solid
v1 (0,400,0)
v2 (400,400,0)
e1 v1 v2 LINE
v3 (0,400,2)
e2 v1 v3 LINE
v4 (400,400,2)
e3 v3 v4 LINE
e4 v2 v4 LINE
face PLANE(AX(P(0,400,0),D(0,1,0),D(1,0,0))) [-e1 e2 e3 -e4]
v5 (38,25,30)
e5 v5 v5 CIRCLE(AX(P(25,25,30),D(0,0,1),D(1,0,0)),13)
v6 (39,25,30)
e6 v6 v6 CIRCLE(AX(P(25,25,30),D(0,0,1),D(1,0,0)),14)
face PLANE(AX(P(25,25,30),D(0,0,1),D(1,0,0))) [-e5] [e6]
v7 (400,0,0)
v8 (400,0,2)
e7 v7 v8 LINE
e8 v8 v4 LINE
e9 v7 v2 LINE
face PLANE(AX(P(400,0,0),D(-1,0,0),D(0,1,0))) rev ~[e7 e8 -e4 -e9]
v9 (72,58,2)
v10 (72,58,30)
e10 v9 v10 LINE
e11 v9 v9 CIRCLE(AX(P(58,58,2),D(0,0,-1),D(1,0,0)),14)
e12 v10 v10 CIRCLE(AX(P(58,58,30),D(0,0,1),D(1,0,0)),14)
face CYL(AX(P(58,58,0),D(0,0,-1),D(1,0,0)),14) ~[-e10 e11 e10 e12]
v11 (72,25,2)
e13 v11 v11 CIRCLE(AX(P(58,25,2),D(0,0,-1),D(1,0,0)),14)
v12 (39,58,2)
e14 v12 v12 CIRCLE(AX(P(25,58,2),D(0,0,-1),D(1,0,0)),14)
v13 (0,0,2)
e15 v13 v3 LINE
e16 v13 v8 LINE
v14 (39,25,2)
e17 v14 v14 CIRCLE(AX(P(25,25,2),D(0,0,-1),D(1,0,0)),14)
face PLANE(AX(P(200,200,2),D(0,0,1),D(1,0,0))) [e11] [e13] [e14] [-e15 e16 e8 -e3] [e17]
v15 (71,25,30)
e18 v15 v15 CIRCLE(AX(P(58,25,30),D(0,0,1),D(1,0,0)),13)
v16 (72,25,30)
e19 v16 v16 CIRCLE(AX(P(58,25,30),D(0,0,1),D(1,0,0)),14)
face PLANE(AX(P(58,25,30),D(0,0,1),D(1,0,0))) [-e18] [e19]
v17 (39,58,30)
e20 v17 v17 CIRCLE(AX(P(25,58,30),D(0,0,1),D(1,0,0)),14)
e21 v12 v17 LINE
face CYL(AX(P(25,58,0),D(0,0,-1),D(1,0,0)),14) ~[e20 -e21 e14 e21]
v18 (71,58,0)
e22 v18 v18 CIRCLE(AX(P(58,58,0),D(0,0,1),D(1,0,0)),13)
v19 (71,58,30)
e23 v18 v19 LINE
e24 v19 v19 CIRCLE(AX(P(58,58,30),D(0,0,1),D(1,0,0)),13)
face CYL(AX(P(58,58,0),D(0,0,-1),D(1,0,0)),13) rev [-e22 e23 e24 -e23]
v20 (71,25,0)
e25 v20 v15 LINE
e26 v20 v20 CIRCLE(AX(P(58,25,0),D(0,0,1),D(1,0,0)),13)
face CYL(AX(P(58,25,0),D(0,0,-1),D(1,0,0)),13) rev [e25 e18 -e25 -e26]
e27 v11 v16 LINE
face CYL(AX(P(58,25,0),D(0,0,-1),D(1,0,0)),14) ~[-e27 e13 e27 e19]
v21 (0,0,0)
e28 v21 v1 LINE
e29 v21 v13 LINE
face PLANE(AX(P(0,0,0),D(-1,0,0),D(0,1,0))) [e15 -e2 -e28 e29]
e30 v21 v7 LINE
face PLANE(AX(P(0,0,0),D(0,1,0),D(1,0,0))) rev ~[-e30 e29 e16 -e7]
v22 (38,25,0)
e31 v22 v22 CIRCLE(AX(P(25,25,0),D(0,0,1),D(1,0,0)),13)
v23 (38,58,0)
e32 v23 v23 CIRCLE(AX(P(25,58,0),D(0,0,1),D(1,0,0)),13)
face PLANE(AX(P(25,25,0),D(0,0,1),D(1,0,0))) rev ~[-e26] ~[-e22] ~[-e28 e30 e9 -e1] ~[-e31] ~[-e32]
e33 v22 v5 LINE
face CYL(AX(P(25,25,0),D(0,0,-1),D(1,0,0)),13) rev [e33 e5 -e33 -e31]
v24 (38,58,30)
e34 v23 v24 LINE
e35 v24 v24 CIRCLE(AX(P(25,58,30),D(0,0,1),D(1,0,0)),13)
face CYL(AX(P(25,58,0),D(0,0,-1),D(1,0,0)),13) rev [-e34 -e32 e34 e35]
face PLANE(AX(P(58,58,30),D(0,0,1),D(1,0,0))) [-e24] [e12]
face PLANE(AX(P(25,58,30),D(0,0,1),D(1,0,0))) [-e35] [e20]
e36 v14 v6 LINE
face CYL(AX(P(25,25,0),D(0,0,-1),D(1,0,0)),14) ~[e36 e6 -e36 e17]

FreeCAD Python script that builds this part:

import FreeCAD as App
import Part
import Sketcher
Q = App.Units.Quantity

doc = App.newDocument("Part")
params = doc.addObject("Spreadsheet::Sheet", "Params")
for row, (alias, value) in enumerate([
    ("sketch1_width", "400 mm"),
    ("pad1_length", "2 mm"),
    ("sketch2_diameter", "28 mm"),
    ("pad2_length", "30 mm"),
    ("sketch3_diameter", "26 mm"),
    ("pocket1_length", "30 mm"),
], start=1):
    params.set(f"A{row}", alias)
    params.set(f"B{row}", "=" + value)
    params.setAlias(f"B{row}", alias)

body = doc.addObject("PartDesign::Body", "Body")

sketch1 = body.newObject("Sketcher::SketchObject", "Sketch")
sketch1.AttachmentSupport = (doc.getObject("XY_Plane"), [""])
sketch1.MapMode = "FlatFace"
sketch1.addGeometry(Part.LineSegment(App.Vector(0, 400, 0), App.Vector(0, 0, 0)), False)
sketch1.addGeometry(Part.LineSegment(App.Vector(0, 0, 0), App.Vector(400, 0, 0)), False)
sketch1.addGeometry(Part.LineSegment(App.Vector(400, 0, 0), App.Vector(400, 400, 0)), False)
sketch1.addGeometry(Part.LineSegment(App.Vector(400, 400, 0), App.Vector(0, 400, 0)), False)
sketch1.addConstraint(Sketcher.Constraint("Coincident", 0, 2, 1, 1))
sketch1.addConstraint(Sketcher.Constraint("Coincident", 1, 2, 2, 1))
sketch1.addConstraint(Sketcher.Constraint("Coincident", 2, 2, 3, 1))
sketch1.addConstraint(Sketcher.Constraint("Coincident", 3, 2, 0, 1))
sketch1.addConstraint(Sketcher.Constraint("Vertical", 0))
sketch1.addConstraint(Sketcher.Constraint("Horizontal", 1))
sketch1.addConstraint(Sketcher.Constraint("Vertical", 2))
sketch1.addConstraint(Sketcher.Constraint("Horizontal", 3))
sketch1.addConstraint(Sketcher.Constraint("Coincident", 0, 2, -1, 1))
sketch1.addConstraint(Sketcher.Constraint("Equal", 3, 0))
sketch1.addConstraint(Sketcher.Constraint("DistanceX", 1, 1, 1, 2, Q("400 mm")))
sketch1.setExpression("Constraints[10]", "Params.sketch1_width")
pad1 = body.newObject("PartDesign::Pad", "Pad")
pad1.Profile = sketch1
pad1.setExpression("Length", "Params.pad1_length")

sketch2 = body.newObject("Sketcher::SketchObject", "Sketch001")
sketch2.AttachmentSupport = (doc.getObject("XY_Plane"), [""])
sketch2.MapMode = "FlatFace"
sketch2.addGeometry(Part.Circle(App.Vector(25, 25, 0), App.Vector(0, 0, 1), 14), False)
sketch2.addGeometry(Part.Circle(App.Vector(58, 25, 0), App.Vector(0, 0, 1), 14), False)
sketch2.addGeometry(Part.Circle(App.Vector(58, 58, 0), App.Vector(0, 0, 1), 14), False)
sketch2.addGeometry(Part.Circle(App.Vector(25, 58, 0), App.Vector(0, 0, 1), 14), False)
sketch2.addConstraint(Sketcher.Constraint("Equal", 0, 1))
sketch2.addConstraint(Sketcher.Constraint("Equal", 1, 2))
sketch2.addConstraint(Sketcher.Constraint("Equal", 2, 3))
sketch2.addConstraint(Sketcher.Constraint("Horizontal", 0, 3, 1, 3))
sketch2.addConstraint(Sketcher.Constraint("Horizontal", 2, 3, 3, 3))
sketch2.addConstraint(Sketcher.Constraint("Vertical", 1, 3, 2, 3))
sketch2.addConstraint(Sketcher.Constraint("Vertical", 0, 3, 3, 3))
sketch2.addConstraint(Sketcher.Constraint("Diameter", 0, Q("28 mm")))
sketch2.addConstraint(Sketcher.Constraint("DistanceX", -1, 1, 0, 3, Q("25 mm")))
sketch2.addConstraint(Sketcher.Constraint("DistanceY", -1, 1, 0, 3, Q("25 mm")))
sketch2.addConstraint(Sketcher.Constraint("DistanceX", -1, 1, 1, 3, Q("58 mm")))
sketch2.addConstraint(Sketcher.Constraint("DistanceY", -1, 1, 2, 3, Q("58 mm")))
sketch2.setExpression("Constraints[7]", "Params.sketch2_diameter")
pad2 = body.newObject("PartDesign::Pad", "Pad001")
pad2.Profile = sketch2
pad2.setExpression("Length", "Params.pad2_length")

sketch3 = body.newObject("Sketcher::SketchObject", "Sketch002")
sketch3.AttachmentSupport = (doc.getObject("XY_Plane"), [""])
sketch3.MapMode = "FlatFace"
sketch3.addGeometry(Part.Circle(App.Vector(25, 58, 0), App.Vector(0, 0, 1), 13), False)
sketch3.addGeometry(Part.Circle(App.Vector(58, 58, 0), App.Vector(0, 0, 1), 13), False)
sketch3.addGeometry(Part.Circle(App.Vector(58, 25, 0), App.Vector(0, 0, 1), 13), False)
sketch3.addGeometry(Part.Circle(App.Vector(25, 25, 0), App.Vector(0, 0, 1), 13), False)
sketch3.addConstraint(Sketcher.Constraint("Equal", 0, 1))
sketch3.addConstraint(Sketcher.Constraint("Equal", 1, 2))
sketch3.addConstraint(Sketcher.Constraint("Equal", 2, 3))
sketch3.addConstraint(Sketcher.Constraint("Horizontal", 0, 3, 1, 3))
sketch3.addConstraint(Sketcher.Constraint("Horizontal", 2, 3, 3, 3))
sketch3.addConstraint(Sketcher.Constraint("Vertical", 1, 3, 2, 3))
sketch3.addConstraint(Sketcher.Constraint("Vertical", 0, 3, 3, 3))
sketch3.addConstraint(Sketcher.Constraint("Diameter", 0, Q("26 mm")))
sketch3.addConstraint(Sketcher.Constraint("DistanceX", -1, 1, 0, 3, Q("25 mm")))
sketch3.addConstraint(Sketcher.Constraint("DistanceY", -1, 1, 0, 3, Q("58 mm")))
sketch3.addConstraint(Sketcher.Constraint("DistanceX", -1, 1, 1, 3, Q("58 mm")))
sketch3.addConstraint(Sketcher.Constraint("DistanceY", -1, 1, 2, 3, Q("25 mm")))
sketch3.setExpression("Constraints[7]", "Params.sketch3_diameter")
pocket1 = body.newObject("PartDesign::Pocket", "Pocket")
pocket1.Profile = sketch3
pocket1.setExpression("Length", "Params.pocket1_length")
pocket1.Reversed = True

doc.recompute()
